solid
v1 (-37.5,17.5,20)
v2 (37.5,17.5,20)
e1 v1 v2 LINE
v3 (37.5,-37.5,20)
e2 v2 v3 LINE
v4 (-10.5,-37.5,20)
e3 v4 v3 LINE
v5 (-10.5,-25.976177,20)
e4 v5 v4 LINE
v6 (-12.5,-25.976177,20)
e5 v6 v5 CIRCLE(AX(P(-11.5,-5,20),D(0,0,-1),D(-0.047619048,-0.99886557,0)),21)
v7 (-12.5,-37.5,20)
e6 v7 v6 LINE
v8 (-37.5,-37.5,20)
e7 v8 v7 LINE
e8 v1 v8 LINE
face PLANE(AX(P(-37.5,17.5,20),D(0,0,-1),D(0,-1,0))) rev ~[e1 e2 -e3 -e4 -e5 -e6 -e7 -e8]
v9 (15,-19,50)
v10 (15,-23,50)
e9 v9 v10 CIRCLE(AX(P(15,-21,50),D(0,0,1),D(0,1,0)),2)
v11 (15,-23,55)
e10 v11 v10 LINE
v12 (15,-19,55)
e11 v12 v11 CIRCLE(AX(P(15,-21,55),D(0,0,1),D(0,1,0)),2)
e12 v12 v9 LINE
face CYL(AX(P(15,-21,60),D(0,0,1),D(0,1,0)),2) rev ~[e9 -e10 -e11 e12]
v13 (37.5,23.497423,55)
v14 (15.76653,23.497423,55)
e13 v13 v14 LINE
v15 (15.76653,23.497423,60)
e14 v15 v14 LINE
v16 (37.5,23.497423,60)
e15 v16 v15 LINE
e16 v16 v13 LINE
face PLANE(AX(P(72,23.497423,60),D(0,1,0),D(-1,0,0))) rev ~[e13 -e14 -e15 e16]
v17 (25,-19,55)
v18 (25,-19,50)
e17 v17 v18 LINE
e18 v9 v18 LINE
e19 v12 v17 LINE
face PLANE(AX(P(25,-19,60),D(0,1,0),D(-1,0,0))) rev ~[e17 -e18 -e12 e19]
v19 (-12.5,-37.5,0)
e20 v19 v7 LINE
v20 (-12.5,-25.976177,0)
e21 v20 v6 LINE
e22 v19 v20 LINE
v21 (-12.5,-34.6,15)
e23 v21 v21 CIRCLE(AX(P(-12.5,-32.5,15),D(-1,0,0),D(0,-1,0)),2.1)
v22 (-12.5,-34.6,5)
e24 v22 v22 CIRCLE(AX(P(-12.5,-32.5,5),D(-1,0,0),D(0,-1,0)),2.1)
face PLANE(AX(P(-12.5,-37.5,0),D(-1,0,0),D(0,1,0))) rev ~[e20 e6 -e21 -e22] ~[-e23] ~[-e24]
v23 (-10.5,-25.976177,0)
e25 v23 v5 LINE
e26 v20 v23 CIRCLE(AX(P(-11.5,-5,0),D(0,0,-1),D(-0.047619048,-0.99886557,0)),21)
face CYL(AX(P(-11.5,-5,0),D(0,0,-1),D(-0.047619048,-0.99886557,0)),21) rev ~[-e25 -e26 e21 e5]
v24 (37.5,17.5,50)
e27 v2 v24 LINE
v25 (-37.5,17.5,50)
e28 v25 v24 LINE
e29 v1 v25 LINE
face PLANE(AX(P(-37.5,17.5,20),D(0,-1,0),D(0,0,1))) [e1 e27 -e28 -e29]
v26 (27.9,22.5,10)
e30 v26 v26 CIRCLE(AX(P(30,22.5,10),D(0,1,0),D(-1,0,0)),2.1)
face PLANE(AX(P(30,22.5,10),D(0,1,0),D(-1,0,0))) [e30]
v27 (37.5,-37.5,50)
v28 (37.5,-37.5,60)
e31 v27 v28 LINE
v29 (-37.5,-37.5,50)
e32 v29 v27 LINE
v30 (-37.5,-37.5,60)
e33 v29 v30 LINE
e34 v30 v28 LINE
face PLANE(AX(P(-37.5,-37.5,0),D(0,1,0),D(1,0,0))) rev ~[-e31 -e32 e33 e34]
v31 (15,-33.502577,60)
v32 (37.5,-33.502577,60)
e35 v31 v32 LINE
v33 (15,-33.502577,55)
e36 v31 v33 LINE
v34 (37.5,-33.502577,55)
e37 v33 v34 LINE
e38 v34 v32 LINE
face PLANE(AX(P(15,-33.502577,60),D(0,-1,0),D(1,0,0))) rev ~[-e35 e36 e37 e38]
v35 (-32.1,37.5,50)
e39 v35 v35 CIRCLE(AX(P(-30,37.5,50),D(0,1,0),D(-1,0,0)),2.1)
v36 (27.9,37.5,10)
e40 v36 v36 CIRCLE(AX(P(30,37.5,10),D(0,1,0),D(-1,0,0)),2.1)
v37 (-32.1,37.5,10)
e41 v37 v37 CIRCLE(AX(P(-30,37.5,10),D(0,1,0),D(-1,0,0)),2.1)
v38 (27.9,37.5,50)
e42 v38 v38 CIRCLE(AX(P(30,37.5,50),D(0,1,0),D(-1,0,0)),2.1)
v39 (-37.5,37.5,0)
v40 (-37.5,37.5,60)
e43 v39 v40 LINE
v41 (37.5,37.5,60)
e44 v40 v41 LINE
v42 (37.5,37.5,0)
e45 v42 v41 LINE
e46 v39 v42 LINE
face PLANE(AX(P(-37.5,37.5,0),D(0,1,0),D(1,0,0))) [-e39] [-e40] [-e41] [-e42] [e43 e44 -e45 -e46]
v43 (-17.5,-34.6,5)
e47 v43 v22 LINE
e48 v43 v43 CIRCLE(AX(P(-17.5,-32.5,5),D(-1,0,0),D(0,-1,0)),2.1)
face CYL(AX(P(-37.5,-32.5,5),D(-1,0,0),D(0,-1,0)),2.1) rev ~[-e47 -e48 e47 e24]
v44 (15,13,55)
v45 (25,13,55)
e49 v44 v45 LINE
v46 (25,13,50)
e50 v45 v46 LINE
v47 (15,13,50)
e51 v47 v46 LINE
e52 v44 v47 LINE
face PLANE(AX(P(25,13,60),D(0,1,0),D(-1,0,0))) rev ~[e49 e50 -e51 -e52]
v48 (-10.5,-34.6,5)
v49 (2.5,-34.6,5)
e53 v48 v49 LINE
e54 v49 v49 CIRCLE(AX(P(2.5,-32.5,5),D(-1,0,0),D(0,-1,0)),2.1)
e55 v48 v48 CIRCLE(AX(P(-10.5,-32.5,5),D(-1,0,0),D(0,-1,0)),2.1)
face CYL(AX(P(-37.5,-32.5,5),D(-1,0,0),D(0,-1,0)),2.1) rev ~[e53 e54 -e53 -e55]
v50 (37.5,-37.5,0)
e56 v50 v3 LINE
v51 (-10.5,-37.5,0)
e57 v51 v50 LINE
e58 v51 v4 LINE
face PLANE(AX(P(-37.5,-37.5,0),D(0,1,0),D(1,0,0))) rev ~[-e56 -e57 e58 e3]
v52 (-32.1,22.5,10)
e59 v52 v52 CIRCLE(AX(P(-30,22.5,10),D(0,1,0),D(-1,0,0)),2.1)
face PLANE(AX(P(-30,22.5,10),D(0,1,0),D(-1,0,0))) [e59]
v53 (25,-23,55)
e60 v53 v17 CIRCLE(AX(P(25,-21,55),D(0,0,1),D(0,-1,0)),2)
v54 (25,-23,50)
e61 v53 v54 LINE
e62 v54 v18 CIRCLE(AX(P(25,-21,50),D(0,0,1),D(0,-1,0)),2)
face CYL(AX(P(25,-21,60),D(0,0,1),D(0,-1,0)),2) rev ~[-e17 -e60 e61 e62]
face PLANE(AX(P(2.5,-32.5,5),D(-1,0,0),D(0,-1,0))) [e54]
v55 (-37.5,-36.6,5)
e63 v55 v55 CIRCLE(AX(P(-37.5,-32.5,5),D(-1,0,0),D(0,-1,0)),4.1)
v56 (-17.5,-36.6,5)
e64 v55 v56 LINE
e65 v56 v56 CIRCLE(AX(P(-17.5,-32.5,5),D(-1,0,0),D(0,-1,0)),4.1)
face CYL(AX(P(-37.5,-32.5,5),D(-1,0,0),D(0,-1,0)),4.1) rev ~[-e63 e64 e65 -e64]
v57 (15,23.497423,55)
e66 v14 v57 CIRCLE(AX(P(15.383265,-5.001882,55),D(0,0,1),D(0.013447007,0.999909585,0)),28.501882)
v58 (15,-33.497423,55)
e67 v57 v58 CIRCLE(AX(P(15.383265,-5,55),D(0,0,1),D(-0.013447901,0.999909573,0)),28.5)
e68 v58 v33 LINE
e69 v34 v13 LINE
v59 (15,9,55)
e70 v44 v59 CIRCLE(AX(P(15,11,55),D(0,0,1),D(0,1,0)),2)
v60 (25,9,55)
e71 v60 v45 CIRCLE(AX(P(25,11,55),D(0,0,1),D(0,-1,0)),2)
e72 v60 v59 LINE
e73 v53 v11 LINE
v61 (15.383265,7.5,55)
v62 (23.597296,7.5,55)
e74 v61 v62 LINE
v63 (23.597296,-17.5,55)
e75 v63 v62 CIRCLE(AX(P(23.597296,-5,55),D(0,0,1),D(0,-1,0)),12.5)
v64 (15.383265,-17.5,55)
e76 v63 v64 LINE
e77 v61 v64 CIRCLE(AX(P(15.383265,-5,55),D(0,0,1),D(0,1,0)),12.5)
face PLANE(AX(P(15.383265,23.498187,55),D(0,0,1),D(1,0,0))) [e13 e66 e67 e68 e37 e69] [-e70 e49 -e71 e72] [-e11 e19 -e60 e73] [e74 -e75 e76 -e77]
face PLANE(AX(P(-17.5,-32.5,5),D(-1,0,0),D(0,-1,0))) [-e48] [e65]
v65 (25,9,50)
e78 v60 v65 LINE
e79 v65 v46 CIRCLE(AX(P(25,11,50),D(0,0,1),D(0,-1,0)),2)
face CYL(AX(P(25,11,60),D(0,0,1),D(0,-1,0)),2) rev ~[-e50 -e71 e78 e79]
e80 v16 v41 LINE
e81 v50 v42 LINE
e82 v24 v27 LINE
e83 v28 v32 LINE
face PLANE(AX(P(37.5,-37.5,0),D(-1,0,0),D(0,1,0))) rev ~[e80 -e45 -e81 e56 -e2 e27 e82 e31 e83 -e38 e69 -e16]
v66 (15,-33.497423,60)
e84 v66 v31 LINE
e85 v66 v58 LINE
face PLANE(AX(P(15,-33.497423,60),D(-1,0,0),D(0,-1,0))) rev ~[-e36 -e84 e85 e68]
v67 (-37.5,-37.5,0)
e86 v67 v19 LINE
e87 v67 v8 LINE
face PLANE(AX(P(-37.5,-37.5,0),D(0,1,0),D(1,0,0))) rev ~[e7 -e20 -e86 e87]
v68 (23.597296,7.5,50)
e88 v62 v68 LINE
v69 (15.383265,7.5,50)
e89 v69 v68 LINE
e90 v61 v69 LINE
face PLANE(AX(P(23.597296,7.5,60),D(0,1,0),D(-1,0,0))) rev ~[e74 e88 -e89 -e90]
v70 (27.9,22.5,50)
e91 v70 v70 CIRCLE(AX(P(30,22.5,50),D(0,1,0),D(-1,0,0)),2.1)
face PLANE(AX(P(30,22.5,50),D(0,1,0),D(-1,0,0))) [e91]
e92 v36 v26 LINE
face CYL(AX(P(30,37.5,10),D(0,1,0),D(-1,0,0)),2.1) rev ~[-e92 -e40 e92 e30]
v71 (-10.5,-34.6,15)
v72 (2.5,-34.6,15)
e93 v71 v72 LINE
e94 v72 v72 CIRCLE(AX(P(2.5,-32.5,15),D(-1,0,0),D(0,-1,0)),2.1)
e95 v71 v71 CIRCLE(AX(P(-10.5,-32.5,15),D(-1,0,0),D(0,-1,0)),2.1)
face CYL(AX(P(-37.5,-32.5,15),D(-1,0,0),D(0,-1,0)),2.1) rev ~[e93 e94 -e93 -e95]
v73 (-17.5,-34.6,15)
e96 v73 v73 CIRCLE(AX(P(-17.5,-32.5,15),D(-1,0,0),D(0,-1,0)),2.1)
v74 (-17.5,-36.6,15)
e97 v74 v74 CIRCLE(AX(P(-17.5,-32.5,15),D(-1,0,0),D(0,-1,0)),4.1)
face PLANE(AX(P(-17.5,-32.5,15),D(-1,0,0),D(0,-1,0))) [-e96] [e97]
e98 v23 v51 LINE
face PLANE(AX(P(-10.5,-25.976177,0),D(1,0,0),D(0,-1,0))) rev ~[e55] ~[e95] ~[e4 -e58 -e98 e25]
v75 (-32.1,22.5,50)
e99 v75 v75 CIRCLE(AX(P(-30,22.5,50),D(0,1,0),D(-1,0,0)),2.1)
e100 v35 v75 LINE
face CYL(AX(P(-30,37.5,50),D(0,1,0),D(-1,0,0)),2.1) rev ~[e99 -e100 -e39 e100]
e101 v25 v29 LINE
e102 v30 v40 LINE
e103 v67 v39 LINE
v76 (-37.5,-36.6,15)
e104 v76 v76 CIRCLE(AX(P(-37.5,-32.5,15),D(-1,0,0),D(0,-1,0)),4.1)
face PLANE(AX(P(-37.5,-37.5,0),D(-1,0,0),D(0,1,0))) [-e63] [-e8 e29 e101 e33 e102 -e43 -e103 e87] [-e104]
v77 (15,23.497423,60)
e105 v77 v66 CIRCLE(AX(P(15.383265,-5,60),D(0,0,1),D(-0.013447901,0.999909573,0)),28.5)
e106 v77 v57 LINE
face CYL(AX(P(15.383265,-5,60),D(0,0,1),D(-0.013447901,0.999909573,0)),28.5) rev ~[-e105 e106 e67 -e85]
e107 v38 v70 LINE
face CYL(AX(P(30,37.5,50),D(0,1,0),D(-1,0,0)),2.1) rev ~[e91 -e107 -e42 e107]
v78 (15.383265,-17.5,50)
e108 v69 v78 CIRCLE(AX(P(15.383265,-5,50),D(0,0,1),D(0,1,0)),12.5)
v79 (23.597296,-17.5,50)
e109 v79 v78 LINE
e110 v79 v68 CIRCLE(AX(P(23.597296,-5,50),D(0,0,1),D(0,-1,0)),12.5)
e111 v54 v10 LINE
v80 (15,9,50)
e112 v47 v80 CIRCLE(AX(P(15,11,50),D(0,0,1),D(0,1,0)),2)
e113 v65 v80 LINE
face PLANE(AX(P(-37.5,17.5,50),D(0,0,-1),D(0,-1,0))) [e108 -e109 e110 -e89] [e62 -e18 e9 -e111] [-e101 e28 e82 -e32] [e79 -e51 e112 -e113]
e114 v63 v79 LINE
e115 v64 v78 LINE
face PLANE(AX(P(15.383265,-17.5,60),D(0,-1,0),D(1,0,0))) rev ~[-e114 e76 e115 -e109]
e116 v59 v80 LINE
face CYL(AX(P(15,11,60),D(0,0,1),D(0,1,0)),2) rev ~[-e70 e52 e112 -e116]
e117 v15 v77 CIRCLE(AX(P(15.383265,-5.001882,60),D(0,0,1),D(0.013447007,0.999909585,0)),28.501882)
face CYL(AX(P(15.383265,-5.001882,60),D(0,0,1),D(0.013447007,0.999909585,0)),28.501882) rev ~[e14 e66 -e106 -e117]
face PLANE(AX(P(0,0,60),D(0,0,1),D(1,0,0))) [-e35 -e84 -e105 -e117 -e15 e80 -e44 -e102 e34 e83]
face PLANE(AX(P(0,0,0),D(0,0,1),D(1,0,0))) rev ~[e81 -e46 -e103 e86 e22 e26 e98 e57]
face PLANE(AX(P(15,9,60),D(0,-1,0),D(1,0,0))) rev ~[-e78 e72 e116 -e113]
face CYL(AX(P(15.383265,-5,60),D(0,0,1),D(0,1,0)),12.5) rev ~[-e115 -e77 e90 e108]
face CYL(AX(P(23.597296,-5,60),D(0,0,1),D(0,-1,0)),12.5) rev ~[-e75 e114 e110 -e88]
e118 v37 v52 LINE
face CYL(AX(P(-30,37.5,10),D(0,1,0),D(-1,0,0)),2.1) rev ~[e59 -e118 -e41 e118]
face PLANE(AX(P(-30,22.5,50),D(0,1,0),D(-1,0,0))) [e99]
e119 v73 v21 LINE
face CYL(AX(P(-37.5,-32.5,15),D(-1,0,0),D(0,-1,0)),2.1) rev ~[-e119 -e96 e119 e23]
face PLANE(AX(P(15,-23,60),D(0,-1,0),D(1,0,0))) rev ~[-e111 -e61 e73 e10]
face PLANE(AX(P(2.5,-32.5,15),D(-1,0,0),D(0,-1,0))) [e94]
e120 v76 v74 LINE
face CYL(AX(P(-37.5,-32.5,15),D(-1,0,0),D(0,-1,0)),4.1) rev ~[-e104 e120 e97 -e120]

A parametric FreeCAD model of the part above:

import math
import FreeCAD as App
import Part
import Sketcher

V = App.Vector


def add_polygon(sketch, points):
    """Adds a closed chain of lines whose ends are joined by coincident constraints."""
    first, n = sketch.GeometryCount, len(points)
    for a, b in zip(points, points[1:] + points[:1]):
        sketch.addGeometry(Part.LineSegment(App.Vector(*a, 0), App.Vector(*b, 0)), False)
    for i in range(n):
        sketch.addConstraint(Sketcher.Constraint("Coincident", first + i, 2, first + (i + 1) % n, 1))

doc = App.newDocument("Part")
body = doc.addObject("PartDesign::Body", "Body")

sketch1 = body.newObject("Sketcher::SketchObject", "Sketch")
sketch1.AttachmentSupport = (doc.getObject("XY_Plane"), [""])
sketch1.MapMode = "FlatFace"
add_polygon(sketch1, [(-38, 38), (-38, -38), (38, -38), (38, 38)])
sketch1.addConstraint(Sketcher.Constraint("Vertical", 0))
sketch1.addConstraint(Sketcher.Constraint("Horizontal", 1))
sketch1.addConstraint(Sketcher.Constraint("Vertical", 2))
sketch1.addConstraint(Sketcher.Constraint("Horizontal", 3))
sketch1.addConstraint(Sketcher.Constraint("Symmetric", 0, 2, 2, 2, -1, 1))
sketch1.addConstraint(Sketcher.Constraint("Equal", 3, 0))
sketch1.addConstraint(Sketcher.Constraint("DistanceX", 1, 1, 1, 2, 75.0))
pad1 = body.newObject("PartDesign::Pad", "Pad")
pad1.Profile = sketch1
pad1.Length = 60

sketch2 = body.newObject("Sketcher::SketchObject", "Sketch001")
sketch2.AttachmentSupport = (doc.getObject("YZ_Plane"), [""])
sketch2.MapMode = "FlatFace"
sketch2.AttachmentOffset = App.Placement(V(0, 0, -37.5), App.Rotation())
add_polygon(sketch2, [(18, 50), (18, 20), (-38, 20), (-38, 50)])
sketch2.addConstraint(Sketcher.Constraint("Vertical", 0))
sketch2.addConstraint(Sketcher.Constraint("Horizontal", 1))
sketch2.addConstraint(Sketcher.Constraint("Vertical", 2))
sketch2.addConstraint(Sketcher.Constraint("Horizontal", 3))
sketch2.addConstraint(Sketcher.Constraint("DistanceX", 1, 2, 1, 1, 55.0))
sketch2.addConstraint(Sketcher.Constraint("DistanceY", 0, 2, 0, 1, 30.0))
sketch2.addConstraint(Sketcher.Constraint("DistanceY", -1, 1, 0, 2, 20.0))
sketch2.addConstraint(Sketcher.Constraint("DistanceX", -1, 1, 0, 2, 17.5))
pocket1 = body.newObject("PartDesign::Pocket", "Pocket")
pocket1.Profile = sketch2
pocket1.Type = "ThroughAll"
pocket1.Reversed = True

sketch3 = body.newObject("Sketcher::SketchObject", "Sketch002")
sketch3.AttachmentSupport = (doc.getObject("XY_Plane"), [""])
sketch3.MapMode = "FlatFace"
sketch3.addGeometry(Part.LineSegment(V(-12.5, -37.5, 0), V(-12.5, -26, 0)), False)
sketch3.addGeometry(Part.ArcOfCircle(Part.Circle(V(-11.5, -5, 0), V(0, 0, 1), 21), math.radians(-87), math.radians(267)), False)
sketch3.addGeometry(Part.LineSegment(V(-10.5, -26, 0), V(-10.5, -37.5, 0)), False)
sketch3.addGeometry(Part.LineSegment(V(-10.5, -37.5, 0), V(-12.5, -37.5, 0)), False)
sketch3.addConstraint(Sketcher.Constraint("Coincident", 0, 2, 1, 2))
sketch3.addConstraint(Sketcher.Constraint("Coincident", 1, 1, 2, 1))
sketch3.addConstraint(Sketcher.Constraint("Coincident", 2, 2, 3, 1))
sketch3.addConstraint(Sketcher.Constraint("Coincident", 3, 2, 0, 1))
sketch3.addConstraint(Sketcher.Constraint("Vertical", 0))
sketch3.addConstraint(Sketcher.Constraint("Vertical", 2))
sketch3.addConstraint(Sketcher.Constraint("Horizontal", 3))
sketch3.addConstraint(Sketcher.Constraint("Horizontal", 0, 2, 1, 1))
sketch3.addConstraint(Sketcher.Constraint("Radius", 1, 21.0))
sketch3.addConstraint(Sketcher.Constraint("DistanceX", 3, 2, 3, 1, 2.0))
sketch3.addConstraint(Sketcher.Constraint("DistanceY", 1, 3, -1, 1, 5.0))
sketch3.addConstraint(Sketcher.Constraint("DistanceX", 1, 3, -1, 1, 11.5))
sketch3.addConstraint(Sketcher.Constraint("DistanceY", 2, 2, -1, 1, 37.5))
pocket2 = body.newObject("PartDesign::Pocket", "Pocket001")
pocket2.Profile = sketch3
pocket2.Length = 25
pocket2.Reversed = True

sketch4 = body.newObject("Sketcher::SketchObject", "Sketch003")
sketch4.AttachmentSupport = (doc.getObject("YZ_Plane"), [""])
sketch4.MapMode = "FlatFace"
sketch4.AttachmentOffset = App.Placement(V(0, 0, -37.5), App.Rotation())
sketch4.addGeometry(Part.Circle(V(-32.5, 15, 0), V(0, 0, 1), 2.1), False)
sketch4.addGeometry(Part.Circle(V(-32.5, 5, 0), V(0, 0, 1), 2.1), False)
sketch4.addConstraint(Sketcher.Constraint("Equal", 0, 1))
sketch4.addConstraint(Sketcher.Constraint("Vertical", 0, 3, 1, 3))
sketch4.addConstraint(Sketcher.Constraint("Diameter", 0, 4.2))
sketch4.addConstraint(Sketcher.Constraint("DistanceY", -1, 1, 0, 3, 15.0))
sketch4.addConstraint(Sketcher.Constraint("DistanceY", -1, 1, 1, 3, 5.0))
sketch4.addConstraint(Sketcher.Constraint("DistanceX", 0, 3, -1, 1, 32.5))
pocket3 = body.newObject("PartDesign::Pocket", "Pocket002")
pocket3.Profile = sketch4
pocket3.Length = 40
pocket3.Reversed = True

sketch5 = body.newObject("Sketcher::SketchObject", "Sketch004")
sketch5.AttachmentSupport = (doc.getObject("YZ_Plane"), [""])
sketch5.MapMode = "FlatFace"
sketch5.AttachmentOffset = App.Placement(V(0, 0, -37.5), App.Rotation())
sketch5.addGeometry(Part.Circle(V(-32.5, 15, 0), V(0, 0, 1), 4.1), False)
sketch5.addGeometry(Part.Circle(V(-32.5, 5, 0), V(0, 0, 1), 4.1), False)
sketch5.addConstraint(Sketcher.Constraint("Equal", 0, 1))
sketch5.addConstraint(Sketcher.Constraint("Vertical", 0, 3, 1, 3))
sketch5.addConstraint(Sketcher.Constraint("Diameter", 0, 8.2))
sketch5.addConstraint(Sketcher.Constraint("DistanceY", -1, 1, 0, 3, 15.0))
sketch5.addConstraint(Sketcher.Constraint("DistanceY", -1, 1, 1, 3, 5.0))
sketch5.addConstraint(Sketcher.Constraint("DistanceX", 0, 3, -1, 1, 32.5))
pocket4 = body.newObject("PartDesign::Pocket", "Pocket003")
pocket4.Profile = sketch5
pocket4.Length = 20
pocket4.Reversed = True

sketch6 = body.newObject("Sketcher::SketchObject", "Sketch005")
sketch6.AttachmentSupport = (doc.getObject("XY_Plane"), [""])
sketch6.MapMode = "FlatFace"
sketch6.AttachmentOffset = App.Placement(V(0, 0, 60), App.Rotation())
sketch6.addGeometry(Part.ArcOfCircle(Part.Circle(V(15, 11, 0), V(0, 0, 1), 2), math.radians(90), math.radians(270)), False)
sketch6.addGeometry(Part.LineSegment(V(15, 9, 0), V(25, 9, 0)), False)
sketch6.addGeometry(Part.ArcOfCircle(Part.Circle(V(25, 11, 0), V(0, 0, 1), 2), math.radians(-90), math.radians(90)), False)
sketch6.addGeometry(Part.LineSegment(V(25, 13, 0), V(15, 13, 0)), False)
sketch6.addGeometry(Part.ArcOfCircle(Part.Circle(V(15, -21, 0), V(0, 0, 1), 2), math.radians(90), math.radians(270)), False)
sketch6.addGeometry(Part.LineSegment(V(15, -23, 0), V(25, -23, 0)), False)
sketch6.addGeometry(Part.ArcOfCircle(Part.Circle(V(25, -21, 0), V(0, 0, 1), 2), math.radians(-90), math.radians(90)), False)
sketch6.addGeometry(Part.LineSegment(V(25, -19, 0), V(15, -19, 0)), False)
sketch6.addGeometry(Part.LineSegment(V(15.4, -17.5, 0), V(23.6, -17.5, 0)), False)
sketch6.addGeometry(Part.ArcOfCircle(Part.Circle(V(23.6, -5, 0), V(0, 0, 1), 12.5), math.radians(-90), math.radians(90)), False)
sketch6.addGeometry(Part.LineSegment(V(23.6, 7.5, 0), V(15.4, 7.5, 0)), False)
sketch6.addGeometry(Part.ArcOfCircle(Part.Circle(V(15.4, -5, 0), V(0, 0, 1), 12.5), math.radians(90), math.radians(270)), False)
sketch6.addConstraint(Sketcher.Constraint("Tangent", 0, 2, 1, 1))
sketch6.addConstraint(Sketcher.Constraint("Tangent", 1, 2, 2, 1))
sketch6.addConstraint(Sketcher.Constraint("Tangent", 2, 2, 3, 1))
sketch6.addConstraint(Sketcher.Constraint("Tangent", 3, 2, 0, 1))
sketch6.addConstraint(Sketcher.Constraint("Tangent", 4, 2, 5, 1))
sketch6.addConstraint(Sketcher.Constraint("Tangent", 5, 2, 6, 1))
sketch6.addConstraint(Sketcher.Constraint("Tangent", 6, 2, 7, 1))
sketch6.addConstraint(Sketcher.Constraint("Tangent", 7, 2, 4, 1))
sketch6.addConstraint(Sketcher.Constraint("Tangent", 8, 2, 9, 1))
sketch6.addConstraint(Sketcher.Constraint("Tangent", 9, 2, 10, 1))
sketch6.addConstraint(Sketcher.Constraint("Tangent", 10, 2, 11, 1))
sketch6.addConstraint(Sketcher.Constraint("Tangent", 11, 2, 8, 1))
sketch6.addConstraint(Sketcher.Constraint("Horizontal", 1))
sketch6.addConstraint(Sketcher.Constraint("Horizontal", 3))
sketch6.addConstraint(Sketcher.Constraint("Horizontal", 5))
sketch6.addConstraint(Sketcher.Constraint("Horizontal", 7))
sketch6.addConstraint(Sketcher.Constraint("Horizontal", 8))
sketch6.addConstraint(Sketcher.Constraint("Horizontal", 10))
sketch6.addConstraint(Sketcher.Constraint("Equal", 2, 4))
sketch6.addConstraint(Sketcher.Constraint("Vertical", 0, 3, 4, 3))
sketch6.addConstraint(Sketcher.Constraint("Vertical", 2, 3, 6, 3))
sketch6.addConstraint(Sketcher.Constraint("Radius", 0, 2.0))
sketch6.addConstraint(Sketcher.Constraint("Radius", 9, 12.5))
sketch6.addConstraint(Sketcher.Constraint("DistanceX", 1, 1, 1, 2, 10.0))
sketch6.addConstraint(Sketcher.Constraint("DistanceX", -1, 1, 0, 3, 15.0))
sketch6.addConstraint(Sketcher.Constraint("DistanceY", -1, 1, 0, 3, 11.0))
sketch6.addConstraint(Sketcher.Constraint("DistanceY", 4, 3, -1, 1, 21.0))
sketch6.addConstraint(Sketcher.Constraint("DistanceY", 9, 3, -1, 1, 5.0))
sketch6.addConstraint(Sketcher.Constraint("DistanceX", 8, 1, 8, 2, 8.214031))
sketch6.addConstraint(Sketcher.Constraint("DistanceX", -1, 1, 9, 3, 23.597296))
pocket5 = body.newObject("PartDesign::Pocket", "Pocket004")
pocket5.Profile = sketch6
pocket5.Length = 25

sketch7 = body.newObject("Sketcher::SketchObject", "Sketch006")
sketch7.AttachmentSupport = (doc.getObject("XY_Plane"), [""])
sketch7.MapMode = "FlatFace"
sketch7.AttachmentOffset = App.Placement(V(0, 0, 60), App.Rotation())
sketch7.addGeometry(Part.ArcOfCircle(Part.Circle(V(15.383265, -5.001882, 0), V(0, 0, 1), 28.501882), math.radians(89.22952), math.radians(90.77048)), False)
sketch7.addGeometry(Part.ArcOfCircle(Part.Circle(V(15.383265, -5, 0), V(0, 0, 1), 28.5), math.radians(90.770531), math.radians(269.229469)), False)
sketch7.addGeometry(Part.LineSegment(V(15, -33.497423, 0), V(15, -33.502577, 0)), False)
sketch7.addGeometry(Part.LineSegment(V(15, -33.502577, 0), V(72, -33.502577, 0)), False)
sketch7.addGeometry(Part.LineSegment(V(72, -33.502577, 0), V(72, 23.497423, 0)), False)
sketch7.addGeometry(Part.LineSegment(V(72, 23.497423, 0), V(15.76653, 23.497423, 0)), False)
sketch7.addConstraint(Sketcher.Constraint("Coincident", 0, 2, 1, 1))
sketch7.addConstraint(Sketcher.Constraint("Coincident", 1, 2, 2, 1))
sketch7.addConstraint(Sketcher.Constraint("Coincident", 2, 2, 3, 1))
sketch7.addConstraint(Sketcher.Constraint("Coincident", 3, 2, 4, 1))
sketch7.addConstraint(Sketcher.Constraint("Coincident", 4, 2, 5, 1))
sketch7.addConstraint(Sketcher.Constraint("Coincident", 5, 2, 0, 1))
sketch7.addConstraint(Sketcher.Constraint("Vertical", 2))
sketch7.addConstraint(Sketcher.Constraint("Horizontal", 3))
sketch7.addConstraint(Sketcher.Constraint("Vertical", 4))
sketch7.addConstraint(Sketcher.Constraint("Horizontal", 5))
sketch7.addConstraint(Sketcher.Constraint("Radius", 1, 28.5))
sketch7.addConstraint(Sketcher.Constraint("DistanceX", 3, 1, 3, 2, 57.0))
sketch7.addConstraint(Sketcher.Constraint("DistanceY", 4, 1, 4, 2, 57.0))
sketch7.addConstraint(Sketcher.Constraint("DistanceY", 1, 3, -1, 1, 5.0))
sketch7.addConstraint(Sketcher.Constraint("DistanceX", -1, 1, 0, 2, 15.0))
sketch7.addConstraint(Sketcher.Constraint("DistanceX", -1, 1, 1, 2, 15.0))
sketch7.addConstraint(Sketcher.Constraint("DistanceY", 2, 2, 0, 2, 57.0))
sketch7.addConstraint(Sketcher.Constraint("Radius", 0, 28.501882))
sketch7.addConstraint(Sketcher.Constraint("DistanceX", 5, 2, 5, 1, 56.23347))
sketch7.addConstraint(Sketcher.Constraint("DistanceY", 2, 2, 2, 1, 0.005154))
pocket6 = body.newObject("PartDesign::Pocket", "Pocket005")
pocket6.Profile = sketch7
pocket6.Length = 5

sketch8 = body.newObject("Sketcher::SketchObject", "Sketch007")
sketch8.AttachmentSupport = (doc.getObject("XZ_Plane"), [""])
sketch8.MapMode = "FlatFace"
sketch8.AttachmentOffset = App.Placement(V(0, 0, -37.5), App.Rotation())
sketch8.addGeometry(Part.Circle(V(30, 50, 0), V(0, 0, 1), 2.1), False)
sketch8.addGeometry(Part.Circle(V(-30, 50, 0), V(0, 0, 1), 2.1), False)
sketch8.addGeometry(Part.Circle(V(-30, 10, 0), V(0, 0, 1), 2.1), False)
sketch8.addGeometry(Part.Circle(V(30, 10, 0), V(0, 0, 1), 2.1), False)
sketch8.addConstraint(Sketcher.Constraint("Equal", 0, 1))
sketch8.addConstraint(Sketcher.Constraint("Equal", 1, 2))
sketch8.addConstraint(Sketcher.Constraint("Equal", 2, 3))
sketch8.addConstraint(Sketcher.Constraint("Symmetric", 0, 3, 1, 3, -2))
sketch8.addConstraint(Sketcher.Constraint("Symmetric", 2, 3, 3, 3, -2))
sketch8.addConstraint(Sketcher.Constraint("Vertical", 1, 3, 2, 3))
sketch8.addConstraint(Sketcher.Constraint("Diameter", 0, 4.2))
sketch8.addConstraint(Sketcher.Constraint("DistanceX", -1, 1, 0, 3, 30.0))
sketch8.addConstraint(Sketcher.Constraint("DistanceY", -1, 1, 0, 3, 50.0))
sketch8.addConstraint(Sketcher.Constraint("DistanceY", -1, 1, 2, 3, 10.0))
pocket7 = body.newObject("PartDesign::Pocket", "Pocket006")
pocket7.Profile = sketch8
pocket7.Length = 15
pocket7.Reversed = True

doc.recompute()
